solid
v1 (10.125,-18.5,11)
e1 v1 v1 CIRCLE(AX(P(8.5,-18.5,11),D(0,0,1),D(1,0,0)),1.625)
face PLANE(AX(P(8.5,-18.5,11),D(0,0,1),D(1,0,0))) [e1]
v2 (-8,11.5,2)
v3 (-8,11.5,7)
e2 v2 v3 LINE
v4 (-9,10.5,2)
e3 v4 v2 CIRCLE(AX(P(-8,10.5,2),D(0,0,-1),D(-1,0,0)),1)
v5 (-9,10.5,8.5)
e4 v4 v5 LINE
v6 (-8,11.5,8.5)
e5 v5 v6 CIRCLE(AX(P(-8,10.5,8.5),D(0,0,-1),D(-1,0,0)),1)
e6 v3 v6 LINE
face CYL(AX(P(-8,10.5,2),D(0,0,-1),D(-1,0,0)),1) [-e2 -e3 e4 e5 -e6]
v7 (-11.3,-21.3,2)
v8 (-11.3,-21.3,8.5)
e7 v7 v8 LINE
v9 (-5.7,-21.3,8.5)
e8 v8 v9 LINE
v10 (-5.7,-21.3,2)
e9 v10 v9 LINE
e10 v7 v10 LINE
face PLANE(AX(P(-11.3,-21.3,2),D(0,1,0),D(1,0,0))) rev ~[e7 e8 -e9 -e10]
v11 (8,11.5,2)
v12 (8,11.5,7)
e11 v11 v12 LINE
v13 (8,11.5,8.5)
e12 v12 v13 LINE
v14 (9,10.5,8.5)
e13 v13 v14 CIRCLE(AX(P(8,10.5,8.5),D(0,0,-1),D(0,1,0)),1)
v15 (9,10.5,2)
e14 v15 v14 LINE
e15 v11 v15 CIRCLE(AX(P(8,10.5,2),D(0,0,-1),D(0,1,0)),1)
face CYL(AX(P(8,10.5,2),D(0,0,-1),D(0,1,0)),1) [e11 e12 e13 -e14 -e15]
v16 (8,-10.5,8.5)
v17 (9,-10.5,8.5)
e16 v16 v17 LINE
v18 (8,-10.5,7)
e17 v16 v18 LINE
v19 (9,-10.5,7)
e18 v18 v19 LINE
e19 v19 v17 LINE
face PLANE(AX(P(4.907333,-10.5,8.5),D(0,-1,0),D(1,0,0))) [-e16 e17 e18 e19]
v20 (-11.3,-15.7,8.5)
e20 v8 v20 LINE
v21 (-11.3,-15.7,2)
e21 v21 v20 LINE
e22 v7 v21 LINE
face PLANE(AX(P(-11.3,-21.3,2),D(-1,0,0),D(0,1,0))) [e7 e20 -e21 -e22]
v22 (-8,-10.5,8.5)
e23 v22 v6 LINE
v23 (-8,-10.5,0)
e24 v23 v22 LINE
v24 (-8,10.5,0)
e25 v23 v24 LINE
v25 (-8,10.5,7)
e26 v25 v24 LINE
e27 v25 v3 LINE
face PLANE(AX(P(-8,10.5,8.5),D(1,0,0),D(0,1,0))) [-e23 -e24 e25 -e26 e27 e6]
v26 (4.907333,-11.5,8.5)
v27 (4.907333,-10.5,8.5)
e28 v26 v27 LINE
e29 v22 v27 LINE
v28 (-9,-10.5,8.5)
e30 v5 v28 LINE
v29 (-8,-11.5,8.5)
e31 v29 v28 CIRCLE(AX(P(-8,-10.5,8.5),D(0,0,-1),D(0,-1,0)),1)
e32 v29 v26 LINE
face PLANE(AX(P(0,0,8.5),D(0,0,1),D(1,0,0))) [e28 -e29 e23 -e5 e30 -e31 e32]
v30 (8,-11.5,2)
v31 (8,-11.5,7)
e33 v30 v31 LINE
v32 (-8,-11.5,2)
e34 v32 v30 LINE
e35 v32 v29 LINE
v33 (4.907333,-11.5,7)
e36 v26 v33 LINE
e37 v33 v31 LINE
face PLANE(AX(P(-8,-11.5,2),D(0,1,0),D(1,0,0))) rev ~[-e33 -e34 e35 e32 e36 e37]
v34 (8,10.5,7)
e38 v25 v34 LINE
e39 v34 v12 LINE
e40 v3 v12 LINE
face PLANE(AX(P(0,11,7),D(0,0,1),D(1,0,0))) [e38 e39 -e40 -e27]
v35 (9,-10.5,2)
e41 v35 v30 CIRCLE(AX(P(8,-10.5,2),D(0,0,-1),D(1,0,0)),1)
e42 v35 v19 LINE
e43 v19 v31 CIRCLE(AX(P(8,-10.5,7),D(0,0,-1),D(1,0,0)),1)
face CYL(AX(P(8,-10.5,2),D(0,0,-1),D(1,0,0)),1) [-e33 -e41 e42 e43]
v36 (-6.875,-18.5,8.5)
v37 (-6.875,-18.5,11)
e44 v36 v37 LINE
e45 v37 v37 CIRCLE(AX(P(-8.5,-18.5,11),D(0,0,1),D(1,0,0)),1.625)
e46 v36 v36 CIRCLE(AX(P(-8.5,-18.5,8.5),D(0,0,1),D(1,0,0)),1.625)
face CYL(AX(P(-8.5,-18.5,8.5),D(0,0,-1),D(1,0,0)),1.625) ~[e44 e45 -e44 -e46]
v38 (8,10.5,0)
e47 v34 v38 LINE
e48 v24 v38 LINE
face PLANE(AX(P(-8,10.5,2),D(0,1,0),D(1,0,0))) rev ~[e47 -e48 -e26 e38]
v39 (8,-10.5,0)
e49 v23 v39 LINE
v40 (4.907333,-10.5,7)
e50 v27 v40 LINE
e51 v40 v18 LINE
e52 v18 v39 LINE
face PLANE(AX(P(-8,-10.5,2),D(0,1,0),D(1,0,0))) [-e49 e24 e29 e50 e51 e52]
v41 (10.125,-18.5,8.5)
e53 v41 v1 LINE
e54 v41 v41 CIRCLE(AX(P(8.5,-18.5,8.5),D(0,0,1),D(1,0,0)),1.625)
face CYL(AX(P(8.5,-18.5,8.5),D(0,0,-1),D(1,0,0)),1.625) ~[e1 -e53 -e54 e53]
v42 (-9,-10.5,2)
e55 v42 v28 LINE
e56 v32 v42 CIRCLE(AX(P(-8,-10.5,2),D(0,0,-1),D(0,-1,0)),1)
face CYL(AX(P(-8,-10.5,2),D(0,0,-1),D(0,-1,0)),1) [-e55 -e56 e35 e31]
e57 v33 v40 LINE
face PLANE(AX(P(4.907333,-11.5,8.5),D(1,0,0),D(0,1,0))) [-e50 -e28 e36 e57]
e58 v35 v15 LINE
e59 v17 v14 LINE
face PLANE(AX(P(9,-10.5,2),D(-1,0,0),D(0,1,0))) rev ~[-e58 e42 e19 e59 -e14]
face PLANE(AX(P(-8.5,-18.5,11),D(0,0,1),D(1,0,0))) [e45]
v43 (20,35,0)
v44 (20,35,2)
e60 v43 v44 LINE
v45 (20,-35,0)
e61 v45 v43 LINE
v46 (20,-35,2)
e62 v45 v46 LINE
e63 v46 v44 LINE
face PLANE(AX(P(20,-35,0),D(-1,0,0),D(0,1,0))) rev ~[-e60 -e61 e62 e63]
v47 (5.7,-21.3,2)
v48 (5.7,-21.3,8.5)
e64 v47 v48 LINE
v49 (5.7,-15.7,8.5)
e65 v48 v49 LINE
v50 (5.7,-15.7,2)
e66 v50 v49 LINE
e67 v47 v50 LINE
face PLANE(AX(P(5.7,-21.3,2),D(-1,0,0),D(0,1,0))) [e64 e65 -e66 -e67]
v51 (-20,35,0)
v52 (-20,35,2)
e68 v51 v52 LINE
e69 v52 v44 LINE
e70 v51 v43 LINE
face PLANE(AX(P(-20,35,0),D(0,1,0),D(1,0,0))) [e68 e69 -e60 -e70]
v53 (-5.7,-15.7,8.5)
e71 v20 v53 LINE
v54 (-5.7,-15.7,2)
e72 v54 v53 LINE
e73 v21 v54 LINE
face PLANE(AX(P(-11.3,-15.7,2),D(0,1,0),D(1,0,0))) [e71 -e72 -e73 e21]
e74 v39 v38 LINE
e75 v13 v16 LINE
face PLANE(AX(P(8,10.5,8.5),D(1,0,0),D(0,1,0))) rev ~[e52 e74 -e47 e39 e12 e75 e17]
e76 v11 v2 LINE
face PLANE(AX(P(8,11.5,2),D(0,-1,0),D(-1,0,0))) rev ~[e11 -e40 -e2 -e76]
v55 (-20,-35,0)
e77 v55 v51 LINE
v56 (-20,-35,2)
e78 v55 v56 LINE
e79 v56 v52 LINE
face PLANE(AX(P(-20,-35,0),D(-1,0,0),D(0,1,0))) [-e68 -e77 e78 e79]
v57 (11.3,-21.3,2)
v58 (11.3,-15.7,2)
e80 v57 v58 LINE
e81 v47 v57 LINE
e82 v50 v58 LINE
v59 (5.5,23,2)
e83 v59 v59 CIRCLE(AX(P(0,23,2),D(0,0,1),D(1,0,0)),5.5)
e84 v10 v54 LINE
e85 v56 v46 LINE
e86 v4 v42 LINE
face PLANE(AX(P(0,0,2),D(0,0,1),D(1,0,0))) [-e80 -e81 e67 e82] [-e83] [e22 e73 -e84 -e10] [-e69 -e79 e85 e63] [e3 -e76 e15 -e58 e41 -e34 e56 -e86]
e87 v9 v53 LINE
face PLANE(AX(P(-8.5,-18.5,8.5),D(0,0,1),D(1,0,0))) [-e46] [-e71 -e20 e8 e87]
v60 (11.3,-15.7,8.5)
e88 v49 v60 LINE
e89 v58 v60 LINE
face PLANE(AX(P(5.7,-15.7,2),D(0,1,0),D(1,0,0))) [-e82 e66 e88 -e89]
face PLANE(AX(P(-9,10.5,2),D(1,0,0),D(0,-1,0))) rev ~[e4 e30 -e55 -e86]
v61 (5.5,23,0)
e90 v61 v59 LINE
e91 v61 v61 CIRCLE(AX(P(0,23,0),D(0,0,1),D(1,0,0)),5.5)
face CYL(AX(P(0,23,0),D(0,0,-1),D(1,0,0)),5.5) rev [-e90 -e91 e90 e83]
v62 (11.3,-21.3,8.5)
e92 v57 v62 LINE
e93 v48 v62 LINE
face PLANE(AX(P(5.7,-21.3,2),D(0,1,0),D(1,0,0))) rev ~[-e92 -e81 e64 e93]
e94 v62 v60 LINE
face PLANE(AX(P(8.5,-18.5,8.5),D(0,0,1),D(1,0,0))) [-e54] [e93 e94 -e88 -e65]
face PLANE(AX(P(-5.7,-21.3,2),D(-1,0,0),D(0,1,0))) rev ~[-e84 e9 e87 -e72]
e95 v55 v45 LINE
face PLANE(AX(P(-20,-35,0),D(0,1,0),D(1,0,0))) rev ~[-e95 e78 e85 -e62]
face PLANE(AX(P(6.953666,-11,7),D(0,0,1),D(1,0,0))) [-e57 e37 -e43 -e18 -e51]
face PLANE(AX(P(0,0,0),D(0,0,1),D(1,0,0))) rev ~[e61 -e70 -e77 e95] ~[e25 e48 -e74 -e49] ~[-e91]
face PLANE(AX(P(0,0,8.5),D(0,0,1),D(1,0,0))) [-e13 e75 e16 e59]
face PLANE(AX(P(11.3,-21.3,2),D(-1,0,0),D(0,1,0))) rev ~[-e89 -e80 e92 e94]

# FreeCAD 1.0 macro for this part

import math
import FreeCAD as App
import Part
import Sketcher
from FreeCAD import Vector

doc = App.newDocument("Part")
params = doc.addObject("Spreadsheet::Sheet", "Params")
for row, (alias, value) in enumerate([
    ("sketch1_diameter", "11 mm"),
    ("sketch1_width", "40 mm"),
    ("sketch1_width2", "16 mm"),
    ("sketch1_height", "70 mm"),
    ("sketch1_height2", "21 mm"),
    ("pad1_length", "2 mm"),
    ("sketch2_radius", "1 mm"),
    ("sketch2_width", "16 mm"),
    ("sketch2_height", "21 mm"),
    ("sketch2_width2", "5.6 mm"),
    ("pad2_length", "6.5 mm"),
    ("sketch3_width", "16 mm"),
    ("sketch3_height", "1 mm"),
    ("pocket1_length", "1.5 mm"),
    ("sketch4_diameter", "3.25 mm"),
    ("pad3_length", "2.5 mm"),
], start=1):
    params.set(f"A{row}", alias)
    params.set(f"B{row}", "=" + value)
    params.setAlias(f"B{row}", alias)

body = doc.addObject("PartDesign::Body", "Body")

# Sketch on XY plane
sketch1 = doc.addObject("Sketcher::SketchObject", "Sketch")
body.addObject(sketch1)
sketch1.AttachmentSupport = (doc.XY_Plane, [""])
sketch1.MapMode = "FlatFace"
sketch1.addGeometry(Part.LineSegment(Vector(-20, 35, 0), Vector(-20, -35, 0)), False)
sketch1.addGeometry(Part.LineSegment(Vector(-20, -35, 0), Vector(20, -35, 0)), False)
sketch1.addGeometry(Part.LineSegment(Vector(20, -35, 0), Vector(20, 35, 0)), False)
sketch1.addGeometry(Part.LineSegment(Vector(20, 35, 0), Vector(-20, 35, 0)), False)
sketch1.addGeometry(Part.LineSegment(Vector(8, -10, 0), Vector(-8, -10, 0)), False)
sketch1.addGeometry(Part.LineSegment(Vector(-8, -10, 0), Vector(-8, 10, 0)), False)
sketch1.addGeometry(Part.LineSegment(Vector(-8, 10, 0), Vector(8, 10, 0)), False)
sketch1.addGeometry(Part.LineSegment(Vector(8, 10, 0), Vector(8, -10, 0)), False)
sketch1.addGeometry(Part.Circle(Vector(0, 23, 0), Vector(0, 0, 1), 6), False)
sketch1.addConstraint(Sketcher.Constraint("Coincident", 0, 2, 1, 1))
sketch1.addConstraint(Sketcher.Constraint("Coincident", 1, 2, 2, 1))
sketch1.addConstraint(Sketcher.Constraint("Coincident", 2, 2, 3, 1))
sketch1.addConstraint(Sketcher.Constraint("Coincident", 3, 2, 0, 1))
sketch1.addConstraint(Sketcher.Constraint("Coincident", 4, 2, 5, 1))
sketch1.addConstraint(Sketcher.Constraint("Coincident", 5, 2, 6, 1))
sketch1.addConstraint(Sketcher.Constraint("Coincident", 6, 2, 7, 1))
sketch1.addConstraint(Sketcher.Constraint("Coincident", 7, 2, 4, 1))
sketch1.addConstraint(Sketcher.Constraint("Vertical", 0))
sketch1.addConstraint(Sketcher.Constraint("Horizontal", 1))
sketch1.addConstraint(Sketcher.Constraint("Vertical", 2))
sketch1.addConstraint(Sketcher.Constraint("Horizontal", 3))
sketch1.addConstraint(Sketcher.Constraint("Horizontal", 4))
sketch1.addConstraint(Sketcher.Constraint("Vertical", 5))
sketch1.addConstraint(Sketcher.Constraint("Horizontal", 6))
sketch1.addConstraint(Sketcher.Constraint("Vertical", 7))
sketch1.addConstraint(Sketcher.Constraint("Symmetric", 0, 2, 2, 2, -1, 1))
sketch1.addConstraint(Sketcher.Constraint("Symmetric", 4, 2, 6, 2, -1, 1))
sketch1.addConstraint(Sketcher.Constraint("PointOnObject", 8, 3, -2))
sketch1.addConstraint(Sketcher.Constraint("Diameter", 8, 11.0))
sketch1.addConstraint(Sketcher.Constraint("DistanceX", 1, 1, 1, 2, 40.0))
sketch1.addConstraint(Sketcher.Constraint("DistanceX", 4, 2, 4, 1, 16.0))
sketch1.addConstraint(Sketcher.Constraint("DistanceY", 0, 2, 0, 1, 70.0))
sketch1.addConstraint(Sketcher.Constraint("DistanceY", 5, 1, 5, 2, 21.0))
sketch1.addConstraint(Sketcher.Constraint("DistanceY", -1, 1, 8, 3, 23.0))
sketch1.setExpression("Constraints[19]", "Params.sketch1_diameter")
sketch1.setExpression("Constraints[20]", "Params.sketch1_width")
sketch1.setExpression("Constraints[21]", "Params.sketch1_width2")
sketch1.setExpression("Constraints[22]", "Params.sketch1_height")
sketch1.setExpression("Constraints[23]", "Params.sketch1_height2")
pad1 = doc.addObject("PartDesign::Pad", "Pad")
body.addObject(pad1)
pad1.Profile = sketch1
pad1.setExpression("Length", "Params.pad1_length")

# Sketch on XY plane
sketch2 = doc.addObject("Sketcher::SketchObject", "Sketch001")
body.addObject(sketch2)
sketch2.AttachmentSupport = (doc.XY_Plane, [""])
sketch2.MapMode = "FlatFace"
sketch2.AttachmentOffset = App.Placement(Vector(0, 0, 2), App.Rotation())
sketch2.addGeometry(Part.LineSegment(Vector(-11.3, -15.7, 0), Vector(-11.3, -21.3, 0)), False)
sketch2.addGeometry(Part.LineSegment(Vector(-11.3, -21.3, 0), Vector(-5.7, -21.3, 0)), False)
sketch2.addGeometry(Part.LineSegment(Vector(-5.7, -21.3, 0), Vector(-5.7, -15.7, 0)), False)
sketch2.addGeometry(Part.LineSegment(Vector(-5.7, -15.7, 0), Vector(-11.3, -15.7, 0)), False)
sketch2.addGeometry(Part.LineSegment(Vector(5.7, -15.7, 0), Vector(5.7, -21.3, 0)), False)
sketch2.addGeometry(Part.LineSegment(Vector(5.7, -21.3, 0), Vector(11.3, -21.3, 0)), False)
sketch2.addGeometry(Part.LineSegment(Vector(11.3, -21.3, 0), Vector(11.3, -15.7, 0)), False)
sketch2.addGeometry(Part.LineSegment(Vector(11.3, -15.7, 0), Vector(5.7, -15.7, 0)), False)
sketch2.addGeometry(Part.LineSegment(Vector(-8, -11.5, 0), Vector(8, -11.5, 0)), False)
sketch2.addGeometry(Part.ArcOfCircle(Part.Circle(Vector(8, -10.5, 0), Vector(0, 0, 1), 1), math.radians(-90), math.radians(0)), False)
sketch2.addGeometry(Part.LineSegment(Vector(9, -10.5, 0), Vector(9, 10.5, 0)), False)
sketch2.addGeometry(Part.ArcOfCircle(Part.Circle(Vector(8, 10.5, 0), Vector(0, 0, 1), 1), math.radians(0), math.radians(90)), False)
sketch2.addGeometry(Part.LineSegment(Vector(8, 11.5, 0), Vector(-8, 11.5, 0)), False)
sketch2.addGeometry(Part.ArcOfCircle(Part.Circle(Vector(-8, 10.5, 0), Vector(0, 0, 1), 1), math.radians(90), math.radians(180)), False)
sketch2.addGeometry(Part.LineSegment(Vector(-9, 10.5, 0), Vector(-9, -10.5, 0)), False)
sketch2.addGeometry(Part.ArcOfCircle(Part.Circle(Vector(-8, -10.5, 0), Vector(0, 0, 1), 1), math.radians(180), math.radians(270)), False)
sketch2.addGeometry(Part.LineSegment(Vector(8, -10.5, 0), Vector(-8, -10.5, 0)), False)
sketch2.addGeometry(Part.LineSegment(Vector(-8, -10.5, 0), Vector(-8, 10.5, 0)), False)
sketch2.addGeometry(Part.LineSegment(Vector(-8, 10.5, 0), Vector(8, 10.5, 0)), False)
sketch2.addGeometry(Part.LineSegment(Vector(8, 10.5, 0), Vector(8, -10.5, 0)), False)
sketch2.addConstraint(Sketcher.Constraint("Coincident", 0, 2, 1, 1))
sketch2.addConstraint(Sketcher.Constraint("Coincident", 1, 2, 2, 1))
sketch2.addConstraint(Sketcher.Constraint("Coincident", 2, 2, 3, 1))
sketch2.addConstraint(Sketcher.Constraint("Coincident", 3, 2, 0, 1))
sketch2.addConstraint(Sketcher.Constraint("Coincident", 4, 2, 5, 1))
sketch2.addConstraint(Sketcher.Constraint("Coincident", 5, 2, 6, 1))
sketch2.addConstraint(Sketcher.Constraint("Coincident", 6, 2, 7, 1))
sketch2.addConstraint(Sketcher.Constraint("Coincident", 7, 2, 4, 1))
sketch2.addConstraint(Sketcher.Constraint("Tangent", 8, 2, 9, 1))
sketch2.addConstraint(Sketcher.Constraint("Tangent", 9, 2, 10, 1))
sketch2.addConstraint(Sketcher.Constraint("Tangent", 10, 2, 11, 1))
sketch2.addConstraint(Sketcher.Constraint("Tangent", 11, 2, 12, 1))
sketch2.addConstraint(Sketcher.Constraint("Tangent", 12, 2, 13, 1))
sketch2.addConstraint(Sketcher.Constraint("Tangent", 13, 2, 14, 1))
sketch2.addConstraint(Sketcher.Constraint("Tangent", 14, 2, 15, 1))
sketch2.addConstraint(Sketcher.Constraint("Tangent", 15, 2, 8, 1))
sketch2.addConstraint(Sketcher.Constraint("Coincident", 16, 2, 17, 1))
sketch2.addConstraint(Sketcher.Constraint("Coincident", 17, 2, 18, 1))
sketch2.addConstraint(Sketcher.Constraint("Coincident", 18, 2, 19, 1))
sketch2.addConstraint(Sketcher.Constraint("Coincident", 19, 2, 16, 1))
sketch2.addConstraint(Sketcher.Constraint("Vertical", 0))
sketch2.addConstraint(Sketcher.Constraint("Horizontal", 1))
sketch2.addConstraint(Sketcher.Constraint("Vertical", 2))
sketch2.addConstraint(Sketcher.Constraint("Horizontal", 3))
sketch2.addConstraint(Sketcher.Constraint("Vertical", 4))
sketch2.addConstraint(Sketcher.Constraint("Horizontal", 5))
sketch2.addConstraint(Sketcher.Constraint("Vertical", 6))
sketch2.addConstraint(Sketcher.Constraint("Horizontal", 7))
sketch2.addConstraint(Sketcher.Constraint("Horizontal", 8))
sketch2.addConstraint(Sketcher.Constraint("Vertical", 10))
sketch2.addConstraint(Sketcher.Constraint("Horizontal", 12))
sketch2.addConstraint(Sketcher.Constraint("Vertical", 14))
sketch2.addConstraint(Sketcher.Constraint("Horizontal", 16))
sketch2.addConstraint(Sketcher.Constraint("Vertical", 17))
sketch2.addConstraint(Sketcher.Constraint("Horizontal", 18))
sketch2.addConstraint(Sketcher.Constraint("Vertical", 19))
sketch2.addConstraint(Sketcher.Constraint("Coincident", 16, 2, 15, 3))
sketch2.addConstraint(Sketcher.Constraint("Coincident", 17, 2, 13, 3))
sketch2.addConstraint(Sketcher.Constraint("Coincident", 18, 2, 11, 3))
sketch2.addConstraint(Sketcher.Constraint("Equal", 9, 11))
sketch2.addConstraint(Sketcher.Constraint("Symmetric", 9, 3, 13, 3, -1, 1))
sketch2.addConstraint(Sketcher.Constraint("Symmetric", 1, 2, 4, 2, -2))
sketch2.addConstraint(Sketcher.Constraint("Symmetric", 3, 2, 6, 2, -2))
sketch2.addConstraint(Sketcher.Constraint("Equal", 7, 0))
sketch2.addConstraint(Sketcher.Constraint("Radius", 9, 1.0))
sketch2.addConstraint(Sketcher.Constraint("DistanceX", 8, 1, 8, 2, 16.0))
sketch2.addConstraint(Sketcher.Constraint("DistanceY", 10, 1, 10, 2, 21.0))
sketch2.addConstraint(Sketcher.Constraint("DistanceX", 1, 1, 1, 2, 5.6))
sketch2.addConstraint(Sketcher.Constraint("DistanceX", 0, 2, 4, 2, 17.0))
sketch2.addConstraint(Sketcher.Constraint("DistanceY", 0, 2, -1, 1, 21.3))
sketch2.setExpression("Constraints[44]", "Params.sketch2_radius")
sketch2.setExpression("Constraints[45]", "Params.sketch2_width")
sketch2.setExpression("Constraints[46]", "Params.sketch2_height")
sketch2.setExpression("Constraints[47]", "Params.sketch2_width2")
pad2 = doc.addObject("PartDesign::Pad", "Pad001")
body.addObject(pad2)
pad2.Profile = sketch2
pad2.setExpression("Length", "Params.pad2_length")

# Sketch on XY plane
sketch3 = doc.addObject("Sketcher::SketchObject", "Sketch002")
body.addObject(sketch3)
sketch3.AttachmentSupport = (doc.XY_Plane, [""])
sketch3.MapMode = "FlatFace"
sketch3.AttachmentOffset = App.Placement(Vector(0, 0, 8.5), App.Rotation())
sketch3.addGeometry(Part.LineSegment(Vector(-8, 11.5, 0), Vector(-8, 10.5, 0)), False)
sketch3.addGeometry(Part.LineSegment(Vector(-8, 10.5, 0), Vector(8, 10.5, 0)), False)
sketch3.addGeometry(Part.LineSegment(Vector(8, 10.5, 0), Vector(8, 11.5, 0)), False)
sketch3.addGeometry(Part.LineSegment(Vector(8, 11.5, 0), Vector(-8, 11.5, 0)), False)
sketch3.addGeometry(Part.LineSegment(Vector(4.9, -10.5, 0), Vector(4.9, -11.5, 0)), False)
sketch3.addGeometry(Part.LineSegment(Vector(4.9, -11.5, 0), Vector(9, -11.5, 0)), False)
sketch3.addGeometry(Part.LineSegment(Vector(9, -11.5, 0), Vector(9, -10.5, 0)), False)
sketch3.addGeometry(Part.LineSegment(Vector(9, -10.5, 0), Vector(4.9, -10.5, 0)), False)
sketch3.addConstraint(Sketcher.Constraint("Coincident", 0, 2, 1, 1))
sketch3.addConstraint(Sketcher.Constraint("Coincident", 1, 2, 2, 1))
sketch3.addConstraint(Sketcher.Constraint("Coincident", 2, 2, 3, 1))
sketch3.addConstraint(Sketcher.Constraint("Coincident", 3, 2, 0, 1))
sketch3.addConstraint(Sketcher.Constraint("Coincident", 4, 2, 5, 1))
sketch3.addConstraint(Sketcher.Constraint("Coincident", 5, 2, 6, 1))
sketch3.addConstraint(Sketcher.Constraint("Coincident", 6, 2, 7, 1))
sketch3.addConstraint(Sketcher.Constraint("Coincident", 7, 2, 4, 1))
sketch3.addConstraint(Sketcher.Constraint("Vertical", 0))
sketch3.addConstraint(Sketcher.Constraint("Horizontal", 1))
sketch3.addConstraint(Sketcher.Constraint("Vertical", 2))
sketch3.addConstraint(Sketcher.Constraint("Horizontal", 3))
sketch3.addConstraint(Sketcher.Constraint("Vertical", 4))
sketch3.addConstraint(Sketcher.Constraint("Horizontal", 5))
sketch3.addConstraint(Sketcher.Constraint("Vertical", 6))
sketch3.addConstraint(Sketcher.Constraint("Horizontal", 7))
sketch3.addConstraint(Sketcher.Constraint("Equal", 2, 4))
sketch3.addConstraint(Sketcher.Constraint("DistanceX", 1, 1, 1, 2, 16.0))
sketch3.addConstraint(Sketcher.Constraint("DistanceY", 0, 2, 0, 1, 1.0))
sketch3.addConstraint(Sketcher.Constraint("DistanceX", 0, 2, -1, 1, 8.0))
sketch3.addConstraint(Sketcher.Constraint("DistanceX", -1, 1, 5, 2, 9.0))
sketch3.addConstraint(Sketcher.Constraint("DistanceY", 4, 2, 1, 2, 22.0))
sketch3.addConstraint(Sketcher.Constraint("DistanceY", -1, 1, 0, 2, 10.5))
sketch3.addConstraint(Sketcher.Constraint("DistanceX", 5, 1, 5, 2, 4.092667))
sketch3.setExpression("Constraints[17]", "Params.sketch3_width")
sketch3.setExpression("Constraints[18]", "Params.sketch3_height")
pocket1 = doc.addObject("PartDesign::Pocket", "Pocket")
body.addObject(pocket1)
pocket1.Profile = sketch3
pocket1.setExpression("Length", "Params.pocket1_length")

# Sketch on XY plane
sketch4 = doc.addObject("Sketcher::SketchObject", "Sketch003")
body.addObject(sketch4)
sketch4.AttachmentSupport = (doc.XY_Plane, [""])
sketch4.MapMode = "FlatFace"
sketch4.AttachmentOffset = App.Placement(Vector(0, 0, 8.5), App.Rotation())
sketch4.addGeometry(Part.Circle(Vector(-8.5, -18.5, 0), Vector(0, 0, 1), 1.6), False)
sketch4.addGeometry(Part.Circle(Vector(8.5, -18.5, 0), Vector(0, 0, 1), 1.6), False)
sketch4.addConstraint(Sketcher.Constraint("Equal", 0, 1))
sketch4.addConstraint(Sketcher.Constraint("Symmetric", 0, 3, 1, 3, -2))
sketch4.addConstraint(Sketcher.Constraint("Diameter", 0, 3.25))
sketch4.addConstraint(Sketcher.Constraint("DistanceX", 0, 3, 1, 3, 17.0))
sketch4.addConstraint(Sketcher.Constraint("DistanceY", 0, 3, -1, 1, 18.5))
sketch4.setExpression("Constraints[2]", "Params.sketch4_diameter")
pad3 = doc.addObject("PartDesign::Pad", "Pad002")
body.addObject(pad3)
pad3.Profile = sketch4
pad3.setExpression("Length", "Params.pad3_length")

doc.recompute()
